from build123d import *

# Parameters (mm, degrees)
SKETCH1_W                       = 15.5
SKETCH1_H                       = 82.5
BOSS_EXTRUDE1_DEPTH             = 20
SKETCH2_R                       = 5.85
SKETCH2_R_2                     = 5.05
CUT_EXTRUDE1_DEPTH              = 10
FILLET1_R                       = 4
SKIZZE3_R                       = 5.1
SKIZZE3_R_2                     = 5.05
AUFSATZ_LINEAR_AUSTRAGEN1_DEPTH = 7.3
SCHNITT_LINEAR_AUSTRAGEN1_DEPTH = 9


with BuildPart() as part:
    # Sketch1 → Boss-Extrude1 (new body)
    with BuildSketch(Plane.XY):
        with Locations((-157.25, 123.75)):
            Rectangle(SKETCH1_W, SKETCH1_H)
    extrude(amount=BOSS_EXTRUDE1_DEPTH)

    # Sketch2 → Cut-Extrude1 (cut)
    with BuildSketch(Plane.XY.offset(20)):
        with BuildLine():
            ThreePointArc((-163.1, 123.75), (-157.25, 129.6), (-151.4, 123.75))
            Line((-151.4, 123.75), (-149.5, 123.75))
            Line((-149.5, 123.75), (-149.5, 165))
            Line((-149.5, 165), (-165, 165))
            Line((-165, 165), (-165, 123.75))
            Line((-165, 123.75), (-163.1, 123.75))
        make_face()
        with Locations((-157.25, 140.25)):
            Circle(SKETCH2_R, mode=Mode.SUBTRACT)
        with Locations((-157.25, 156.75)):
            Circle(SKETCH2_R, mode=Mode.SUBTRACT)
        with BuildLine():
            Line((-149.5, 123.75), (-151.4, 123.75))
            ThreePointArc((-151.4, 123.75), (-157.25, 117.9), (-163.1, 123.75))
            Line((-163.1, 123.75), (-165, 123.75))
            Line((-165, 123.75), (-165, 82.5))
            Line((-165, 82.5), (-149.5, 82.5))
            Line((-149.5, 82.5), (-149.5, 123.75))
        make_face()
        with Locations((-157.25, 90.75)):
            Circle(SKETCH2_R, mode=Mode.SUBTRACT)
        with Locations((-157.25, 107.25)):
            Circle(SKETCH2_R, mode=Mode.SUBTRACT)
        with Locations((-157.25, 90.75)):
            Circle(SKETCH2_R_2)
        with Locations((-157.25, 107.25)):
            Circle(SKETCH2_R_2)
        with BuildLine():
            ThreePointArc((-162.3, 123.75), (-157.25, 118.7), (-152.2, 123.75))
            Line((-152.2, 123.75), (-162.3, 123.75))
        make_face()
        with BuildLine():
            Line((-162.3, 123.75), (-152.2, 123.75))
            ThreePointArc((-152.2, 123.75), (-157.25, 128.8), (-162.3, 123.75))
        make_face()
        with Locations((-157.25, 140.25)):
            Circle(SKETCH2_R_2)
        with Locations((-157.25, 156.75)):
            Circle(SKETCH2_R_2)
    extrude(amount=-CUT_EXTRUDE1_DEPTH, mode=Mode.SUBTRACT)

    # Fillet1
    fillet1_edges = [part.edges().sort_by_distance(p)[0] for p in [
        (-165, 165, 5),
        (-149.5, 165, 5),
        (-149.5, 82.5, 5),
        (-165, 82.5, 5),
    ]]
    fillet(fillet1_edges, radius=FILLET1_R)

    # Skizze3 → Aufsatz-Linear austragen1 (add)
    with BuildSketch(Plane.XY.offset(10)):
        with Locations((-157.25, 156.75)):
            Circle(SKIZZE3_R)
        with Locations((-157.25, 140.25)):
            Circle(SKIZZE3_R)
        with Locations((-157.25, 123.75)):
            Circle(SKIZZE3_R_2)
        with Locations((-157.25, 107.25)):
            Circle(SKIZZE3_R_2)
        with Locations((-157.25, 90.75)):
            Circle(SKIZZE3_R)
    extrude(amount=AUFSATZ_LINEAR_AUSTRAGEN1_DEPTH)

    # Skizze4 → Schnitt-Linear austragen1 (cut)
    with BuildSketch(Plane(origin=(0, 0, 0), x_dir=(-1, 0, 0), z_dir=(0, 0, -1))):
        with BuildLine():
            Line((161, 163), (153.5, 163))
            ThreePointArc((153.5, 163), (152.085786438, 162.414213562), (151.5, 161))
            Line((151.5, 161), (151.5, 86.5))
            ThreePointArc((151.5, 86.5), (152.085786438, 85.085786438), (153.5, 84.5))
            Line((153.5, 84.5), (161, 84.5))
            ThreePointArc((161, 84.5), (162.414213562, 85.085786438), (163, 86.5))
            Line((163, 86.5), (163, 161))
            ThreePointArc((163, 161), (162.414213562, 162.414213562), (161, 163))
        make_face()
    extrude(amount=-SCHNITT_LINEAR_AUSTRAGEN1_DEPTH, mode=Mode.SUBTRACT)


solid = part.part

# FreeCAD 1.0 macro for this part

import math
import FreeCAD as App
import Part
import Sketcher

V = App.Vector
Q = App.Units.Quantity


def edges_at(feature, points):
    """Names of the edges that pass closest to the given points."""
    edges = feature.Shape.Edges
    near = lambda p: min(range(len(edges)), key=lambda i: edges[i].distToShape(Part.Vertex(*p))[0])
    return sorted({f"Edge{near(p) + 1}" for p in points})


def add_polygon(sketch, points):
    """Adds a closed chain of lines whose ends are joined by coincident constraints."""
    first, n = sketch.GeometryCount, len(points)
    for a, b in zip(points, points[1:] + points[:1]):
        sketch.addGeometry(Part.LineSegment(App.Vector(*a, 0), App.Vector(*b, 0)), False)
    for i in range(n):
        sketch.addConstraint(Sketcher.Constraint("Coincident", first + i, 2, first + (i + 1) % n, 1))

doc = App.newDocument("Part")
body = doc.addObject("PartDesign::Body", "Body")

sketch1 = body.newObject("Sketcher::SketchObject", "Sketch")
sketch1.AttachmentSupport = (doc.getObject("XY_Plane"), [""])
sketch1.MapMode = "FlatFace"
add_polygon(sketch1, [(-165, 165), (-165, 82), (-150, 82), (-150, 165)])
sketch1.addConstraint([
    Sketcher.Constraint("Vertical", 0),
    Sketcher.Constraint("Horizontal", 1),
    Sketcher.Constraint("Vertical", 2),
    Sketcher.Constraint("Horizontal", 3),
    Sketcher.Constraint("DistanceX", 1, 1, 1, 2, Q("15.5 mm")),
    Sketcher.Constraint("DistanceY", 0, 2, 0, 1, Q("82.5 mm")),
    Sketcher.Constraint("DistanceX", 0, 2, -1, 1, Q("165 mm")),
    Sketcher.Constraint("DistanceY", -1, 1, 2, 2, Q("165 mm")),
])
pad1 = body.newObject("PartDesign::Pad", "Pad")
pad1.Profile = sketch1
pad1.Length = 20

sketch2 = body.newObject("Sketcher::SketchObject", "Sketch001")
sketch2.AttachmentSupport = (doc.getObject("XY_Plane"), [""])
sketch2.MapMode = "FlatFace"
sketch2.AttachmentOffset = App.Placement(V(0, 0, 20), App.Rotation())
add_polygon(sketch2, [(-165, 165), (-165, 82), (-150, 82), (-150, 165)])
sketch2.addGeometry(Part.Circle(V(-157, 91, 0), V(0, 0, 1), 6), False)
sketch2.addGeometry(Part.Circle(V(-157, 107, 0), V(0, 0, 1), 6), False)
sketch2.addGeometry(Part.Circle(V(-157, 124, 0), V(0, 0, 1), 6), False)
sketch2.addGeometry(Part.Circle(V(-157, 140, 0), V(0, 0, 1), 6), False)
sketch2.addGeometry(Part.Circle(V(-157, 157, 0), V(0, 0, 1), 6), False)
sketch2.addGeometry(Part.Circle(V(-157, 91, 0), V(0, 0, 1), 5), False)
sketch2.addGeometry(Part.Circle(V(-157, 107, 0), V(0, 0, 1), 5), False)
sketch2.addGeometry(Part.Circle(V(-157, 124, 0), V(0, 0, 1), 5), False)
sketch2.addGeometry(Part.Circle(V(-157, 140, 0), V(0, 0, 1), 5), False)
sketch2.addGeometry(Part.Circle(V(-157, 157, 0), V(0, 0, 1), 5), False)
sketch2.addConstraint([
    Sketcher.Constraint("Vertical", 0),
    Sketcher.Constraint("Horizontal", 1),
    Sketcher.Constraint("Vertical", 2),
    Sketcher.Constraint("Horizontal", 3),
    Sketcher.Constraint("Coincident", 9, 3, 4, 3),
    Sketcher.Constraint("Coincident", 10, 3, 5, 3),
    Sketcher.Constraint("Coincident", 11, 3, 6, 3),
    Sketcher.Constraint("Coincident", 12, 3, 7, 3),
    Sketcher.Constraint("Coincident", 13, 3, 8, 3),
    Sketcher.Constraint("Equal", 4, 5),
    Sketcher.Constraint("Equal", 5, 6),
    Sketcher.Constraint("Equal", 6, 7),
    Sketcher.Constraint("Equal", 7, 8),
    Sketcher.Constraint("Equal", 9, 10),
    Sketcher.Constraint("Equal", 10, 11),
    Sketcher.Constraint("Equal", 11, 12),
    Sketcher.Constraint("Equal", 12, 13),
    Sketcher.Constraint("Vertical", 4, 3, 5, 3),
    Sketcher.Constraint("Vertical", 5, 3, 6, 3),
    Sketcher.Constraint("Vertical", 6, 3, 7, 3),
    Sketcher.Constraint("Vertical", 7, 3, 8, 3),
    Sketcher.Constraint("Diameter", 4, Q("11.7 mm")),
    Sketcher.Constraint("Diameter", 9, Q("10.1 mm")),
    Sketcher.Constraint("DistanceX", 1, 1, 1, 2, Q("15.5 mm")),
    Sketcher.Constraint("DistanceY", 0, 2, 0, 1, Q("82.5 mm")),
    Sketcher.Constraint("DistanceX", 0, 2, -1, 1, Q("165 mm")),
    Sketcher.Constraint("DistanceY", -1, 1, 2, 2, Q("165 mm")),
    Sketcher.Constraint("DistanceY", 4, 3, 6, 3, Q("33 mm")),
    Sketcher.Constraint("DistanceY", 5, 3, 7, 3, Q("33 mm")),
    Sketcher.Constraint("DistanceY", 6, 3, 8, 3, Q("33 mm")),
    Sketcher.Constraint("DistanceY", 4, 3, 5, 3, Q("16.5 mm")),
    Sketcher.Constraint("DistanceX", 4, 3, -1, 1, Q("157.25 mm")),
    Sketcher.Constraint("DistanceY", -1, 1, 4, 3, Q("90.75 mm")),
])
pocket1 = body.newObject("PartDesign::Pocket", "Pocket")
pocket1.Profile = sketch2
pocket1.Length = 10
doc.recompute()

fillet = body.newObject("PartDesign::Fillet", "Fillet")
fillet.Base = (pocket1, edges_at(pocket1, [
    (-165, 165, 5),
    (-149.5, 165, 5),
    (-149.5, 82.5, 5),
    (-165, 82.5, 5),
]))
fillet.Radius = 4

sketch3 = body.newObject("Sketcher::SketchObject", "Sketch002")
sketch3.AttachmentSupport = (doc.getObject("XY_Plane"), [""])
sketch3.MapMode = "FlatFace"
sketch3.AttachmentOffset = App.Placement(V(0, 0, 10), App.Rotation())
sketch3.addGeometry([
    Part.Circle(V(-157, 157, 0), V(0, 0, 1), 5),
    Part.Circle(V(-157, 140, 0), V(0, 0, 1), 5),
    Part.Circle(V(-157, 124, 0), V(0, 0, 1), 5),
    Part.Circle(V(-157, 107, 0), V(0, 0, 1), 5),
    Part.Circle(V(-157, 91, 0), V(0, 0, 1), 5),
], False)
sketch3.addConstraint([
    Sketcher.Constraint("Equal", 0, 1),
    Sketcher.Constraint("Equal", 2, 3),
    Sketcher.Constraint("Equal", 1, 4),
    Sketcher.Constraint("Vertical", 0, 3, 1, 3),
    Sketcher.Constraint("Vertical", 1, 3, 2, 3),
    Sketcher.Constraint("Vertical", 2, 3, 3, 3),
    Sketcher.Constraint("Vertical", 3, 3, 4, 3),
    Sketcher.Constraint("Diameter", 0, Q("10.2 mm")),
    Sketcher.Constraint("Diameter", 2, Q("10.1 mm")),
    Sketcher.Constraint("DistanceY", 2, 3, 0, 3, Q("33 mm")),
    Sketcher.Constraint("DistanceY", 3, 3, 1, 3, Q("33 mm")),
    Sketcher.Constraint("DistanceY", 4, 3, 2, 3, Q("33 mm")),
    Sketcher.Constraint("DistanceY", 1, 3, 0, 3, Q("16.5 mm")),
    Sketcher.Constraint("DistanceX", 0, 3, -1, 1, Q("157.25 mm")),
    Sketcher.Constraint("DistanceY", -1, 1, 0, 3, Q("156.75 mm")),
])
pad2 = body.newObject("PartDesign::Pad", "Pad001")
pad2.Profile = sketch3
pad2.Length = 7.3

sketch4 = body.newObject("Sketcher::SketchObject", "Sketch003")
sketch4.AttachmentSupport = (doc.getObject("XY_Plane"), [""])
sketch4.MapMode = "FlatFace"
sketch4.addGeometry([
    Part.LineSegment(V(-161, 163, 0), V(-153.5, 163, 0)),
    Part.ArcOfCircle(Part.Circle(V(-153.5, 161, 0), V(0, 0, 1), 2), math.radians(0), math.radians(90)),
    Part.LineSegment(V(-151.5, 161, 0), V(-151.5, 86.5, 0)),
    Part.ArcOfCircle(Part.Circle(V(-153.5, 86.5, 0), V(0, 0, 1), 2), math.radians(-90), math.radians(0)),
    Part.LineSegment(V(-153.5, 84.5, 0), V(-161, 84.5, 0)),
    Part.ArcOfCircle(Part.Circle(V(-161, 86.5, 0), V(0, 0, 1), 2), math.radians(-180), math.radians(-90)),
    Part.LineSegment(V(-163, 86.5, 0), V(-163, 161, 0)),
    Part.ArcOfCircle(Part.Circle(V(-161, 161, 0), V(0, 0, 1), 2), math.radians(90), math.radians(180)),
], False)
sketch4.addConstraint([
    Sketcher.Constraint("Tangent", 0, 2, 1, 2),
    Sketcher.Constraint("Tangent", 1, 1, 2, 1),
    Sketcher.Constraint("Tangent", 2, 2, 3, 2),
    Sketcher.Constraint("Tangent", 3, 1, 4, 1),
    Sketcher.Constraint("Tangent", 4, 2, 5, 2),
    Sketcher.Constraint("Tangent", 5, 1, 6, 1),
    Sketcher.Constraint("Tangent", 6, 2, 7, 2),
    Sketcher.Constraint("Tangent", 7, 1, 0, 1),
    Sketcher.Constraint("Horizontal", 0),
    Sketcher.Constraint("Vertical", 2),
    Sketcher.Constraint("Horizontal", 4),
    Sketcher.Constraint("Vertical", 6),
    Sketcher.Constraint("Equal", 1, 3),
    Sketcher.Constraint("Equal", 3, 5),
    Sketcher.Constraint("Equal", 5, 7),
    Sketcher.Constraint("Radius", 1, Q("2 mm")),
    Sketcher.Constraint("DistanceX", 0, 1, 0, 2, Q("7.5 mm")),
    Sketcher.Constraint("DistanceY", 2, 2, 2, 1, Q("74.5 mm")),
    Sketcher.Constraint("DistanceY", -1, 1, 1, 3, Q("161 mm")),
    Sketcher.Constraint("DistanceX", 5, 3, -1, 1, Q("161 mm")),
])
pocket2 = body.newObject("PartDesign::Pocket", "Pocket001")
pocket2.Profile = sketch4
pocket2.Length = 9
pocket2.Reversed = True

doc.recompute()
